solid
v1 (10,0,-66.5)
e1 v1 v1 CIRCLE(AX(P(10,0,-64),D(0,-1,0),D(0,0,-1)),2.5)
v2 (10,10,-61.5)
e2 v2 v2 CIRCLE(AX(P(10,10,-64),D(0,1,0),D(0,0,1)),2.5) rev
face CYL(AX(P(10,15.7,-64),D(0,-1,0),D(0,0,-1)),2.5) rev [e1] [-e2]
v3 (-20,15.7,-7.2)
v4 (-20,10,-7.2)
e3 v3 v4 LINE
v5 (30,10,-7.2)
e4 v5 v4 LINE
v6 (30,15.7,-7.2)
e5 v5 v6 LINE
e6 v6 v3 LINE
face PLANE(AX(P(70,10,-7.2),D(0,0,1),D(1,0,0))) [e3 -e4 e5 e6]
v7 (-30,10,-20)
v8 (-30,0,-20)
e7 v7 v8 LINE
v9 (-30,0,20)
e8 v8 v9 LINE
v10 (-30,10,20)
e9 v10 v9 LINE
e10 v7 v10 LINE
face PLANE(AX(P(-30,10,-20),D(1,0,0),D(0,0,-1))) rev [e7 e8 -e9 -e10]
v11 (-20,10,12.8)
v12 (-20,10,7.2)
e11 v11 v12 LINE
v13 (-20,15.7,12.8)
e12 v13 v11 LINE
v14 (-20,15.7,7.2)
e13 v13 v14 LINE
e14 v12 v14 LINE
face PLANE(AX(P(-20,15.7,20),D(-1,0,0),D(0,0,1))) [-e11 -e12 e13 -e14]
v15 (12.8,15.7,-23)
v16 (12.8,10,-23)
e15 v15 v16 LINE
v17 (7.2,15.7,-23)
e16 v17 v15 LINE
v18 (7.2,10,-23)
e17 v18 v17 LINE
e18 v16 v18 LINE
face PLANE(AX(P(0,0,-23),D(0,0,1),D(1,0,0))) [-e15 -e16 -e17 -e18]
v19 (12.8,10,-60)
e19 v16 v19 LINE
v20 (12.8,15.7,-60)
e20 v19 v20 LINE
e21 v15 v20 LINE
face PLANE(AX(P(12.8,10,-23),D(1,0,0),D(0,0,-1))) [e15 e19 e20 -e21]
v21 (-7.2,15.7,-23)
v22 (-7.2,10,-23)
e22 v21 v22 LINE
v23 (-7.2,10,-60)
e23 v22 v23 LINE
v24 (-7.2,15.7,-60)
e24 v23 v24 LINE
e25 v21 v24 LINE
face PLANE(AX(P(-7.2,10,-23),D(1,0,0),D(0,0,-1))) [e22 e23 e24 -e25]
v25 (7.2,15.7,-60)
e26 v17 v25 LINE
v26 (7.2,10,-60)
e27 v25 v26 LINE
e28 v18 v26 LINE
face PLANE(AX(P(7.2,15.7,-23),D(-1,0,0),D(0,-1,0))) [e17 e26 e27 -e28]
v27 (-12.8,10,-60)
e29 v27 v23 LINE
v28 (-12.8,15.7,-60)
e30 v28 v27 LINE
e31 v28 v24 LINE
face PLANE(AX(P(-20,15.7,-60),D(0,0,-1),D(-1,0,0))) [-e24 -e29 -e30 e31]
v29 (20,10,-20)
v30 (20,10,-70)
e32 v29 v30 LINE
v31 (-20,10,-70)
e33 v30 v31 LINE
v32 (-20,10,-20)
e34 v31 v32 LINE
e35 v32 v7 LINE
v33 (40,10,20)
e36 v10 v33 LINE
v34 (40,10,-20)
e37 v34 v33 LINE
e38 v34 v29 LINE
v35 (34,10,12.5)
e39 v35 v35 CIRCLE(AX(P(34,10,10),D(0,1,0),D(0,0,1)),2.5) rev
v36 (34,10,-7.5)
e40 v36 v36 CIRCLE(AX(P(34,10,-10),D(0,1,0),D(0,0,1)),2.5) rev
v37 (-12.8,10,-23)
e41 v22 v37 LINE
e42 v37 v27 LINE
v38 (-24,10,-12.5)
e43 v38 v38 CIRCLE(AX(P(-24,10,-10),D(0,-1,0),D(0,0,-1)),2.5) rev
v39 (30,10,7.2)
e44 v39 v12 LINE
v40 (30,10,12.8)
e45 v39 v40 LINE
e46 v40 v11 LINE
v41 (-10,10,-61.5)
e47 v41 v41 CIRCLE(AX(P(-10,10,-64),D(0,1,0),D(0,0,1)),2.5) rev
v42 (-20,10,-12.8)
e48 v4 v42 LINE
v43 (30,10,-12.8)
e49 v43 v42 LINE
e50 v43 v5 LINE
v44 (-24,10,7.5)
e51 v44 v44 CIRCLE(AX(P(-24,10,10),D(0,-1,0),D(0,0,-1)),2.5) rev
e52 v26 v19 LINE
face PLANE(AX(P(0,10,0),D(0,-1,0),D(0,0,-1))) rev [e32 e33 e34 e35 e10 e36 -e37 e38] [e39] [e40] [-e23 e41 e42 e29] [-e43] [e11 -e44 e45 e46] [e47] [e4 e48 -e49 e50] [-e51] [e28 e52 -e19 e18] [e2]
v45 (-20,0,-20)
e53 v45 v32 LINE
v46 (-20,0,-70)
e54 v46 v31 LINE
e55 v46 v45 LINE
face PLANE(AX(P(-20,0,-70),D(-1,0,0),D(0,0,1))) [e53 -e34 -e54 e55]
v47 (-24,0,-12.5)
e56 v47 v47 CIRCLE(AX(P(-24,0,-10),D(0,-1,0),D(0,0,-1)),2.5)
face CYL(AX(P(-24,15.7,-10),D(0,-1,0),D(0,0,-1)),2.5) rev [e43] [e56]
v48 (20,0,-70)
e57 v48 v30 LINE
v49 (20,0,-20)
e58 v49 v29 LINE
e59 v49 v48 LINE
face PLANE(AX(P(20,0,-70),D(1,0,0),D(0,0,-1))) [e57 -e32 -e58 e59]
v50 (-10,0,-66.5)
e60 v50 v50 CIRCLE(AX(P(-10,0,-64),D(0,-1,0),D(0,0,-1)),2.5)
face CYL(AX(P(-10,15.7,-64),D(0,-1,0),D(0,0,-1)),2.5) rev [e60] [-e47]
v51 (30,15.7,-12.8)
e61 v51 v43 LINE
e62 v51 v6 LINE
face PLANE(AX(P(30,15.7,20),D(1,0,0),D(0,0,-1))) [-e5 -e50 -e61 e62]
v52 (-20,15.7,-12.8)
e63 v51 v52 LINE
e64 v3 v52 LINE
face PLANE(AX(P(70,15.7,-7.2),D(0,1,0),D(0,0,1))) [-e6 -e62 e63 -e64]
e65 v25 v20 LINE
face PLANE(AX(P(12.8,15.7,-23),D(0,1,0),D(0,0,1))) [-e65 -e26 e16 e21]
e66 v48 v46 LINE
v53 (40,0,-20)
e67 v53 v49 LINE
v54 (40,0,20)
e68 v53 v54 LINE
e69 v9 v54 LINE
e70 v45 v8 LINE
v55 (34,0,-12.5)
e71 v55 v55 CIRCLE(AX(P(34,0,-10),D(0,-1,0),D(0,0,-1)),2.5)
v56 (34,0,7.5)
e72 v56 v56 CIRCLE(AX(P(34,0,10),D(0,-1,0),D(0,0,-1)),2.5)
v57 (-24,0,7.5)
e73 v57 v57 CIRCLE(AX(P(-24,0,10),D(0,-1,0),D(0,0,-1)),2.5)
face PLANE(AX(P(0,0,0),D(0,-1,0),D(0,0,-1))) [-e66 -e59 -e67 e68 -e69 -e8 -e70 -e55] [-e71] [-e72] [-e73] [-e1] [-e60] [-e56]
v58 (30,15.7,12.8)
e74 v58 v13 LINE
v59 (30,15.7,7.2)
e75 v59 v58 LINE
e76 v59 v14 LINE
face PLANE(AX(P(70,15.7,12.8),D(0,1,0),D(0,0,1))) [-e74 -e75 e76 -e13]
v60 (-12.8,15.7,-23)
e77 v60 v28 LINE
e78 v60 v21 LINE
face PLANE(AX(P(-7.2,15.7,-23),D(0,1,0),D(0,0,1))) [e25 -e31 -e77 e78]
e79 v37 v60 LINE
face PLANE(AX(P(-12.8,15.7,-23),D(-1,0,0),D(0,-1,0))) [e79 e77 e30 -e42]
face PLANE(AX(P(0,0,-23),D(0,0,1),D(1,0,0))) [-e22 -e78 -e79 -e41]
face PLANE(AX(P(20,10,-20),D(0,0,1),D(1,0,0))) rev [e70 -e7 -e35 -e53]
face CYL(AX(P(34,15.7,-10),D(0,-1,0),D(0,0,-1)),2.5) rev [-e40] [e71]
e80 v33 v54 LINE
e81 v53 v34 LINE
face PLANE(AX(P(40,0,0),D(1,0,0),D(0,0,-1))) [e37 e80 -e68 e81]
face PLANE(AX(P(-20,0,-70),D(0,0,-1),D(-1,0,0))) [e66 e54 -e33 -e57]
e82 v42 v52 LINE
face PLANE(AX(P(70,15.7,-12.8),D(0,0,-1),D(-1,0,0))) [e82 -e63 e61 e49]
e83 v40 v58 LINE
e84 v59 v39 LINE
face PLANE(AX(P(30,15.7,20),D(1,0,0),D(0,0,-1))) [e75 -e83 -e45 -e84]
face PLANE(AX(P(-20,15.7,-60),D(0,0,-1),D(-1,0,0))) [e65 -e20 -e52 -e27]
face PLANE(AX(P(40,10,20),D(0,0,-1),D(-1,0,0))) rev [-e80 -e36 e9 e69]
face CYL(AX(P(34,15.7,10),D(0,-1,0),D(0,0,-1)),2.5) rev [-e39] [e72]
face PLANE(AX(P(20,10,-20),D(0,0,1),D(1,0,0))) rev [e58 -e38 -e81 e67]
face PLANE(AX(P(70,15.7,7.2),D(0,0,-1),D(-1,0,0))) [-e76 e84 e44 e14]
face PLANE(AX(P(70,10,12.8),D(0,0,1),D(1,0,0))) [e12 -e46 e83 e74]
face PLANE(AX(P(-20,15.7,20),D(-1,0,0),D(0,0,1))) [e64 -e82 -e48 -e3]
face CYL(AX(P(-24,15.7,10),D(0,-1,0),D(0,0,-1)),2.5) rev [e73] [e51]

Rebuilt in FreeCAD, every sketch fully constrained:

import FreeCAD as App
import Part
import Sketcher

V = App.Vector
Q = App.Units.Quantity

doc = App.newDocument("Part")
body = doc.addObject("PartDesign::Body", "Body")

sketch1 = body.newObject("Sketcher::SketchObject", "Sketch")
sketch1.AttachmentSupport = (doc.getObject("XZ_Plane"), [""])
sketch1.MapMode = "FlatFace"
sketch1.addGeometry(Part.LineSegment(V(-30, -20, 0), V(-30, 20, 0)), False)
sketch1.addGeometry(Part.LineSegment(V(-30, 20, 0), V(70, 20, 0)), False)
sketch1.addGeometry(Part.LineSegment(V(70, 20, 0), V(70, -20, 0)), False)
sketch1.addGeometry(Part.LineSegment(V(70, -20, 0), V(-30, -20, 0)), False)
sketch1.addConstraint(Sketcher.Constraint("Coincident", 0, 2, 1, 1))
sketch1.addConstraint(Sketcher.Constraint("Coincident", 1, 2, 2, 1))
sketch1.addConstraint(Sketcher.Constraint("Coincident", 2, 2, 3, 1))
sketch1.addConstraint(Sketcher.Constraint("Coincident", 3, 2, 0, 1))
sketch1.addConstraint(Sketcher.Constraint("Vertical", 0))
sketch1.addConstraint(Sketcher.Constraint("Horizontal", 1))
sketch1.addConstraint(Sketcher.Constraint("Vertical", 2))
sketch1.addConstraint(Sketcher.Constraint("Horizontal", 3))
sketch1.addConstraint(Sketcher.Constraint("DistanceX", 1, 1, 1, 2, Q("100 mm")))
sketch1.addConstraint(Sketcher.Constraint("DistanceY", 0, 1, 0, 2, Q("40 mm")))
sketch1.addConstraint(Sketcher.Constraint("DistanceX", 0, 2, -1, 1, Q("30 mm")))
sketch1.addConstraint(Sketcher.Constraint("DistanceY", -1, 1, 0, 2, Q("20 mm")))
pad1 = body.newObject("PartDesign::Pad", "Pad")
pad1.Profile = sketch1
pad1.Length = 10
pad1.Reversed = True

sketch2 = body.newObject("Sketcher::SketchObject", "Sketch001")
sketch2.AttachmentSupport = (doc.getObject("YZ_Plane"), [""])
sketch2.MapMode = "FlatFace"
sketch2.AttachmentOffset = App.Placement(V(0, 0, -30), App.Rotation())
sketch2.addGeometry(Part.LineSegment(V(10, 12.8, 0), V(15.7, 12.8, 0)), False)
sketch2.addGeometry(Part.LineSegment(V(15.7, 12.8, 0), V(15.7, 7.2, 0)), False)
sketch2.addGeometry(Part.LineSegment(V(15.7, 7.2, 0), V(10, 7.2, 0)), False)
sketch2.addGeometry(Part.LineSegment(V(10, 7.2, 0), V(10, 12.8, 0)), False)
sketch2.addGeometry(Part.LineSegment(V(10, -7.2, 0), V(15.7, -7.2, 0)), False)
sketch2.addGeometry(Part.LineSegment(V(15.7, -7.2, 0), V(15.7, -12.8, 0)), False)
sketch2.addGeometry(Part.LineSegment(V(15.7, -12.8, 0), V(10, -12.8, 0)), False)
sketch2.addGeometry(Part.LineSegment(V(10, -12.8, 0), V(10, -7.2, 0)), False)
sketch2.addConstraint(Sketcher.Constraint("Coincident", 0, 2, 1, 1))
sketch2.addConstraint(Sketcher.Constraint("Coincident", 1, 2, 2, 1))
sketch2.addConstraint(Sketcher.Constraint("Coincident", 2, 2, 3, 1))
sketch2.addConstraint(Sketcher.Constraint("Coincident", 3, 2, 0, 1))
sketch2.addConstraint(Sketcher.Constraint("Coincident", 4, 2, 5, 1))
sketch2.addConstraint(Sketcher.Constraint("Coincident", 5, 2, 6, 1))
sketch2.addConstraint(Sketcher.Constraint("Coincident", 6, 2, 7, 1))
sketch2.addConstraint(Sketcher.Constraint("Coincident", 7, 2, 4, 1))
sketch2.addConstraint(Sketcher.Constraint("Horizontal", 0))
sketch2.addConstraint(Sketcher.Constraint("Vertical", 1))
sketch2.addConstraint(Sketcher.Constraint("Horizontal", 2))
sketch2.addConstraint(Sketcher.Constraint("Vertical", 3))
sketch2.addConstraint(Sketcher.Constraint("Horizontal", 4))
sketch2.addConstraint(Sketcher.Constraint("Vertical", 5))
sketch2.addConstraint(Sketcher.Constraint("Horizontal", 6))
sketch2.addConstraint(Sketcher.Constraint("Vertical", 7))
sketch2.addConstraint(Sketcher.Constraint("Symmetric", 1, 2, 4, 2, -1))
sketch2.addConstraint(Sketcher.Constraint("Symmetric", 3, 2, 6, 2, -1))
sketch2.addConstraint(Sketcher.Constraint("DistanceX", 0, 1, 0, 2, Q("5.7 mm")))
sketch2.addConstraint(Sketcher.Constraint("DistanceY", 1, 2, 1, 1, Q("5.6 mm")))
sketch2.addConstraint(Sketcher.Constraint("DistanceX", -1, 1, 2, 2, Q("10 mm")))
sketch2.addConstraint(Sketcher.Constraint("DistanceY", 4, 2, 0, 2, Q("20 mm")))
pad2 = body.newObject("PartDesign::Pad", "Pad001")
pad2.Profile = sketch2
pad2.Length = 100

sketch3 = body.newObject("Sketcher::SketchObject", "Sketch002")
sketch3.AttachmentSupport = (doc.getObject("XZ_Plane"), [""])
sketch3.MapMode = "FlatFace"
sketch3.AttachmentOffset = App.Placement(V(0, 0, -10), App.Rotation())
sketch3.addGeometry(Part.LineSegment(V(-20, -70, 0), V(-20, -20, 0)), False)
sketch3.addGeometry(Part.LineSegment(V(-20, -20, 0), V(20, -20, 0)), False)
sketch3.addGeometry(Part.LineSegment(V(20, -20, 0), V(20, -70, 0)), False)
sketch3.addGeometry(Part.LineSegment(V(20, -70, 0), V(-20, -70, 0)), False)
sketch3.addConstraint(Sketcher.Constraint("Coincident", 0, 2, 1, 1))
sketch3.addConstraint(Sketcher.Constraint("Coincident", 1, 2, 2, 1))
sketch3.addConstraint(Sketcher.Constraint("Coincident", 2, 2, 3, 1))
sketch3.addConstraint(Sketcher.Constraint("Coincident", 3, 2, 0, 1))
sketch3.addConstraint(Sketcher.Constraint("Vertical", 0))
sketch3.addConstraint(Sketcher.Constraint("Horizontal", 1))
sketch3.addConstraint(Sketcher.Constraint("Vertical", 2))
sketch3.addConstraint(Sketcher.Constraint("Horizontal", 3))
sketch3.addConstraint(Sketcher.Constraint("DistanceX", 1, 1, 1, 2, Q("40 mm")))
sketch3.addConstraint(Sketcher.Constraint("DistanceY", 0, 1, 0, 2, Q("50 mm")))
sketch3.addConstraint(Sketcher.Constraint("DistanceX", 0, 2, -1, 1, Q("20 mm")))
sketch3.addConstraint(Sketcher.Constraint("DistanceY", 0, 2, -1, 1, Q("20 mm")))
pad3 = body.newObject("PartDesign::Pad", "Pad002")
pad3.Profile = sketch3
pad3.Length = 10

sketch4 = body.newObject("Sketcher::SketchObject", "Sketch003")
sketch4.AttachmentSupport = (doc.getObject("XY_Plane"), [""])
sketch4.MapMode = "FlatFace"
sketch4.AttachmentOffset = App.Placement(V(0, 0, -70), App.Rotation())
sketch4.addGeometry(Part.LineSegment(V(12.8, 10, 0), V(7.2, 10, 0)), False)
sketch4.addGeometry(Part.LineSegment(V(7.2, 10, 0), V(7.2, 15.7, 0)), False)
sketch4.addGeometry(Part.LineSegment(V(7.2, 15.7, 0), V(12.8, 15.7, 0)), False)
sketch4.addGeometry(Part.LineSegment(V(12.8, 15.7, 0), V(12.8, 10, 0)), False)
sketch4.addGeometry(Part.LineSegment(V(-7.2, 10, 0), V(-12.8, 10, 0)), False)
sketch4.addGeometry(Part.LineSegment(V(-12.8, 10, 0), V(-12.8, 15.7, 0)), False)
sketch4.addGeometry(Part.LineSegment(V(-12.8, 15.7, 0), V(-7.2, 15.7, 0)), False)
sketch4.addGeometry(Part.LineSegment(V(-7.2, 15.7, 0), V(-7.2, 10, 0)), False)
sketch4.addConstraint(Sketcher.Constraint("Coincident", 0, 2, 1, 1))
sketch4.addConstraint(Sketcher.Constraint("Coincident", 1, 2, 2, 1))
sketch4.addConstraint(Sketcher.Constraint("Coincident", 2, 2, 3, 1))
sketch4.addConstraint(Sketcher.Constraint("Coincident", 3, 2, 0, 1))
sketch4.addConstraint(Sketcher.Constraint("Coincident", 4, 2, 5, 1))
sketch4.addConstraint(Sketcher.Constraint("Coincident", 5, 2, 6, 1))
sketch4.addConstraint(Sketcher.Constraint("Coincident", 6, 2, 7, 1))
sketch4.addConstraint(Sketcher.Constraint("Coincident", 7, 2, 4, 1))
sketch4.addConstraint(Sketcher.Constraint("Horizontal", 0))
sketch4.addConstraint(Sketcher.Constraint("Vertical", 1))
sketch4.addConstraint(Sketcher.Constraint("Horizontal", 2))
sketch4.addConstraint(Sketcher.Constraint("Vertical", 3))
sketch4.addConstraint(Sketcher.Constraint("Horizontal", 4))
sketch4.addConstraint(Sketcher.Constraint("Vertical", 5))
sketch4.addConstraint(Sketcher.Constraint("Horizontal", 6))
sketch4.addConstraint(Sketcher.Constraint("Vertical", 7))
sketch4.addConstraint(Sketcher.Constraint("Symmetric", 3, 2, 4, 2, -2))
sketch4.addConstraint(Sketcher.Constraint("Symmetric", 1, 2, 6, 2, -2))
sketch4.addConstraint(Sketcher.Constraint("DistanceX", 0, 2, 0, 1, Q("5.6 mm")))
sketch4.addConstraint(Sketcher.Constraint("DistanceY", 1, 1, 1, 2, Q("5.7 mm")))
sketch4.addConstraint(Sketcher.Constraint("DistanceY", -1, 1, 0, 2, Q("10 mm")))
sketch4.addConstraint(Sketcher.Constraint("DistanceX", 4, 2, 0, 2, Q("20 mm")))
pad4 = body.newObject("PartDesign::Pad", "Pad003")
pad4.Profile = sketch4
pad4.Length = 47

sketch5 = body.newObject("Sketcher::SketchObject", "Sketch004")
sketch5.AttachmentSupport = (doc.getObject("YZ_Plane"), [""])
sketch5.MapMode = "FlatFace"
sketch5.AttachmentOffset = App.Placement(V(0, 0, 70), App.Rotation())
sketch5.addGeometry(Part.LineSegment(V(22.199312, 29.63814, 0), V(-22.199312, 29.63814, 0)), False)
sketch5.addGeometry(Part.LineSegment(V(-22.199312, 29.63814, 0), V(-22.199312, -29.63814, 0)), False)
sketch5.addGeometry(Part.LineSegment(V(-22.199312, -29.63814, 0), V(22.199312, -29.63814, 0)), False)
sketch5.addGeometry(Part.LineSegment(V(22.199312, -29.63814, 0), V(22.199312, 29.63814, 0)), False)
sketch5.addConstraint(Sketcher.Constraint("Coincident", 0, 2, 1, 1))
sketch5.addConstraint(Sketcher.Constraint("Coincident", 1, 2, 2, 1))
sketch5.addConstraint(Sketcher.Constraint("Coincident", 2, 2, 3, 1))
sketch5.addConstraint(Sketcher.Constraint("Coincident", 3, 2, 0, 1))
sketch5.addConstraint(Sketcher.Constraint("Horizontal", 0))
sketch5.addConstraint(Sketcher.Constraint("Vertical", 1))
sketch5.addConstraint(Sketcher.Constraint("Horizontal", 2))
sketch5.addConstraint(Sketcher.Constraint("Vertical", 3))
sketch5.addConstraint(Sketcher.Constraint("Symmetric", 0, 2, 2, 2, -1, 1))
sketch5.addConstraint(Sketcher.Constraint("DistanceY", 1, 2, 1, 1, Q("59.276281 mm")))
sketch5.addConstraint(Sketcher.Constraint("DistanceX", 0, 2, 0, 1, Q("44.398623 mm")))
pocket1 = body.newObject("PartDesign::Pocket", "Pocket")
pocket1.Profile = sketch5
pocket1.Length = 30

sketch6 = body.newObject("Sketcher::SketchObject", "Sketch005")
sketch6.AttachmentSupport = (doc.getObject("XZ_Plane"), [""])
sketch6.MapMode = "FlatFace"
sketch6.addGeometry(Part.Circle(V(34, 10, 0), V(0, 0, 1), 2.5), False)
sketch6.addGeometry(Part.Circle(V(34, -10, 0), V(0, 0, 1), 2.5), False)
sketch6.addGeometry(Part.Circle(V(-24, 10, 0), V(0, 0, 1), 2.5), False)
sketch6.addGeometry(Part.Circle(V(-24, -10, 0), V(0, 0, 1), 2.5), False)
sketch6.addGeometry(Part.Circle(V(-10, -64, 0), V(0, 0, 1), 2.5), False)
sketch6.addGeometry(Part.Circle(V(10, -64, 0), V(0, 0, 1), 2.5), False)
sketch6.addConstraint(Sketcher.Constraint("Equal", 0, 1))
sketch6.addConstraint(Sketcher.Constraint("Equal", 1, 2))
sketch6.addConstraint(Sketcher.Constraint("Equal", 2, 3))
sketch6.addConstraint(Sketcher.Constraint("Equal", 3, 4))
sketch6.addConstraint(Sketcher.Constraint("Equal", 4, 5))
sketch6.addConstraint(Sketcher.Constraint("Symmetric", 4, 3, 5, 3, -2))
sketch6.addConstraint(Sketcher.Constraint("Symmetric", 0, 3, 1, 3, -1))
sketch6.addConstraint(Sketcher.Constraint("Symmetric", 2, 3, 3, 3, -1))
sketch6.addConstraint(Sketcher.Constraint("Horizontal", 0, 3, 2, 3))
sketch6.addConstraint(Sketcher.Constraint("Diameter", 0, Q("5 mm")))
sketch6.addConstraint(Sketcher.Constraint("DistanceX", -1, 1, 0, 3, Q("34 mm")))
sketch6.addConstraint(Sketcher.Constraint("DistanceY", -1, 1, 0, 3, Q("10 mm")))
sketch6.addConstraint(Sketcher.Constraint("DistanceX", 2, 3, -1, 1, Q("24 mm")))
sketch6.addConstraint(Sketcher.Constraint("DistanceX", 4, 3, -1, 1, Q("10 mm")))
sketch6.addConstraint(Sketcher.Constraint("DistanceY", 4, 3, -1, 1, Q("64 mm")))
pocket2 = body.newObject("PartDesign::Pocket", "Pocket001")
pocket2.Profile = sketch6
pocket2.Type = "ThroughAll"

sketch7 = body.newObject("Sketcher::SketchObject", "Sketch006")
sketch7.AttachmentSupport = (doc.getObject("XZ_Plane"), [""])
sketch7.MapMode = "FlatFace"
sketch7.AttachmentOffset = App.Placement(V(0, 0, -10), App.Rotation())
sketch7.addGeometry(Part.LineSegment(V(30, -20, 0), V(30, 20, 0)), False)
sketch7.addGeometry(Part.LineSegment(V(30, 20, 0), V(40, 20, 0)), False)
sketch7.addGeometry(Part.LineSegment(V(40, 20, 0), V(40, -20, 0)), False)
sketch7.addGeometry(Part.LineSegment(V(40, -20, 0), V(30, -20, 0)), False)
sketch7.addGeometry(Part.LineSegment(V(-30, -20, 0), V(-30, 20, 0)), False)
sketch7.addGeometry(Part.LineSegment(V(-30, 20, 0), V(-20, 20, 0)), False)
sketch7.addGeometry(Part.LineSegment(V(-20, 20, 0), V(-20, -20, 0)), False)
sketch7.addGeometry(Part.LineSegment(V(-20, -20, 0), V(-30, -20, 0)), False)
sketch7.addGeometry(Part.LineSegment(V(-20, -70, 0), V(-20, -60, 0)), False)
sketch7.addGeometry(Part.LineSegment(V(-20, -60, 0), V(20, -60, 0)), False)
sketch7.addGeometry(Part.LineSegment(V(20, -60, 0), V(20, -70, 0)), False)
sketch7.addGeometry(Part.LineSegment(V(20, -70, 0), V(-20, -70, 0)), False)
sketch7.addConstraint(Sketcher.Constraint("Coincident", 0, 2, 1, 1))
sketch7.addConstraint(Sketcher.Constraint("Coincident", 1, 2, 2, 1))
sketch7.addConstraint(Sketcher.Constraint("Coincident", 2, 2, 3, 1))
sketch7.addConstraint(Sketcher.Constraint("Coincident", 3, 2, 0, 1))
sketch7.addConstraint(Sketcher.Constraint("Coincident", 4, 2, 5, 1))
sketch7.addConstraint(Sketcher.Constraint("Coincident", 5, 2, 6, 1))
sketch7.addConstraint(Sketcher.Constraint("Coincident", 6, 2, 7, 1))
sketch7.addConstraint(Sketcher.Constraint("Coincident", 7, 2, 4, 1))
sketch7.addConstraint(Sketcher.Constraint("Coincident", 8, 2, 9, 1))
sketch7.addConstraint(Sketcher.Constraint("Coincident", 9, 2, 10, 1))
sketch7.addConstraint(Sketcher.Constraint("Coincident", 10, 2, 11, 1))
sketch7.addConstraint(Sketcher.Constraint("Coincident", 11, 2, 8, 1))
sketch7.addConstraint(Sketcher.Constraint("Vertical", 0))
sketch7.addConstraint(Sketcher.Constraint("Horizontal", 1))
sketch7.addConstraint(Sketcher.Constraint("Vertical", 2))
sketch7.addConstraint(Sketcher.Constraint("Horizontal", 3))
sketch7.addConstraint(Sketcher.Constraint("Vertical", 4))
sketch7.addConstraint(Sketcher.Constraint("Horizontal", 5))
sketch7.addConstraint(Sketcher.Constraint("Vertical", 6))
sketch7.addConstraint(Sketcher.Constraint("Horizontal", 7))
sketch7.addConstraint(Sketcher.Constraint("Vertical", 8))
sketch7.addConstraint(Sketcher.Constraint("Horizontal", 9))
sketch7.addConstraint(Sketcher.Constraint("Vertical", 10))
sketch7.addConstraint(Sketcher.Constraint("Horizontal", 11))
sketch7.addConstraint(Sketcher.Constraint("Symmetric", 3, 2, 4, 2, -1, 1))
sketch7.addConstraint(Sketcher.Constraint("Horizontal", 1, 2, 4, 2))
sketch7.addConstraint(Sketcher.Constraint("Horizontal", 3, 2, 6, 2))
sketch7.addConstraint(Sketcher.Constraint("Vertical", 6, 2, 8, 2))
sketch7.addConstraint(Sketcher.Constraint("Equal", 3, 5))
sketch7.addConstraint(Sketcher.Constraint("Equal", 11, 0))
sketch7.addConstraint(Sketcher.Constraint("Equal", 7, 8))
sketch7.addConstraint(Sketcher.Constraint("DistanceX", 1, 1, 1, 2, Q("10 mm")))
sketch7.addConstraint(Sketcher.Constraint("DistanceX", 9, 1, 9, 2, Q("40 mm")))
sketch7.addConstraint(Sketcher.Constraint("DistanceX", -1, 1, 0, 2, Q("30 mm")))
sketch7.addConstraint(Sketcher.Constraint("DistanceY", 8, 2, -1, 1, Q("60 mm")))
pocket3 = body.newObject("PartDesign::Pocket", "Pocket002")
pocket3.Profile = sketch7
pocket3.Type = "ThroughAll"

doc.recompute()
